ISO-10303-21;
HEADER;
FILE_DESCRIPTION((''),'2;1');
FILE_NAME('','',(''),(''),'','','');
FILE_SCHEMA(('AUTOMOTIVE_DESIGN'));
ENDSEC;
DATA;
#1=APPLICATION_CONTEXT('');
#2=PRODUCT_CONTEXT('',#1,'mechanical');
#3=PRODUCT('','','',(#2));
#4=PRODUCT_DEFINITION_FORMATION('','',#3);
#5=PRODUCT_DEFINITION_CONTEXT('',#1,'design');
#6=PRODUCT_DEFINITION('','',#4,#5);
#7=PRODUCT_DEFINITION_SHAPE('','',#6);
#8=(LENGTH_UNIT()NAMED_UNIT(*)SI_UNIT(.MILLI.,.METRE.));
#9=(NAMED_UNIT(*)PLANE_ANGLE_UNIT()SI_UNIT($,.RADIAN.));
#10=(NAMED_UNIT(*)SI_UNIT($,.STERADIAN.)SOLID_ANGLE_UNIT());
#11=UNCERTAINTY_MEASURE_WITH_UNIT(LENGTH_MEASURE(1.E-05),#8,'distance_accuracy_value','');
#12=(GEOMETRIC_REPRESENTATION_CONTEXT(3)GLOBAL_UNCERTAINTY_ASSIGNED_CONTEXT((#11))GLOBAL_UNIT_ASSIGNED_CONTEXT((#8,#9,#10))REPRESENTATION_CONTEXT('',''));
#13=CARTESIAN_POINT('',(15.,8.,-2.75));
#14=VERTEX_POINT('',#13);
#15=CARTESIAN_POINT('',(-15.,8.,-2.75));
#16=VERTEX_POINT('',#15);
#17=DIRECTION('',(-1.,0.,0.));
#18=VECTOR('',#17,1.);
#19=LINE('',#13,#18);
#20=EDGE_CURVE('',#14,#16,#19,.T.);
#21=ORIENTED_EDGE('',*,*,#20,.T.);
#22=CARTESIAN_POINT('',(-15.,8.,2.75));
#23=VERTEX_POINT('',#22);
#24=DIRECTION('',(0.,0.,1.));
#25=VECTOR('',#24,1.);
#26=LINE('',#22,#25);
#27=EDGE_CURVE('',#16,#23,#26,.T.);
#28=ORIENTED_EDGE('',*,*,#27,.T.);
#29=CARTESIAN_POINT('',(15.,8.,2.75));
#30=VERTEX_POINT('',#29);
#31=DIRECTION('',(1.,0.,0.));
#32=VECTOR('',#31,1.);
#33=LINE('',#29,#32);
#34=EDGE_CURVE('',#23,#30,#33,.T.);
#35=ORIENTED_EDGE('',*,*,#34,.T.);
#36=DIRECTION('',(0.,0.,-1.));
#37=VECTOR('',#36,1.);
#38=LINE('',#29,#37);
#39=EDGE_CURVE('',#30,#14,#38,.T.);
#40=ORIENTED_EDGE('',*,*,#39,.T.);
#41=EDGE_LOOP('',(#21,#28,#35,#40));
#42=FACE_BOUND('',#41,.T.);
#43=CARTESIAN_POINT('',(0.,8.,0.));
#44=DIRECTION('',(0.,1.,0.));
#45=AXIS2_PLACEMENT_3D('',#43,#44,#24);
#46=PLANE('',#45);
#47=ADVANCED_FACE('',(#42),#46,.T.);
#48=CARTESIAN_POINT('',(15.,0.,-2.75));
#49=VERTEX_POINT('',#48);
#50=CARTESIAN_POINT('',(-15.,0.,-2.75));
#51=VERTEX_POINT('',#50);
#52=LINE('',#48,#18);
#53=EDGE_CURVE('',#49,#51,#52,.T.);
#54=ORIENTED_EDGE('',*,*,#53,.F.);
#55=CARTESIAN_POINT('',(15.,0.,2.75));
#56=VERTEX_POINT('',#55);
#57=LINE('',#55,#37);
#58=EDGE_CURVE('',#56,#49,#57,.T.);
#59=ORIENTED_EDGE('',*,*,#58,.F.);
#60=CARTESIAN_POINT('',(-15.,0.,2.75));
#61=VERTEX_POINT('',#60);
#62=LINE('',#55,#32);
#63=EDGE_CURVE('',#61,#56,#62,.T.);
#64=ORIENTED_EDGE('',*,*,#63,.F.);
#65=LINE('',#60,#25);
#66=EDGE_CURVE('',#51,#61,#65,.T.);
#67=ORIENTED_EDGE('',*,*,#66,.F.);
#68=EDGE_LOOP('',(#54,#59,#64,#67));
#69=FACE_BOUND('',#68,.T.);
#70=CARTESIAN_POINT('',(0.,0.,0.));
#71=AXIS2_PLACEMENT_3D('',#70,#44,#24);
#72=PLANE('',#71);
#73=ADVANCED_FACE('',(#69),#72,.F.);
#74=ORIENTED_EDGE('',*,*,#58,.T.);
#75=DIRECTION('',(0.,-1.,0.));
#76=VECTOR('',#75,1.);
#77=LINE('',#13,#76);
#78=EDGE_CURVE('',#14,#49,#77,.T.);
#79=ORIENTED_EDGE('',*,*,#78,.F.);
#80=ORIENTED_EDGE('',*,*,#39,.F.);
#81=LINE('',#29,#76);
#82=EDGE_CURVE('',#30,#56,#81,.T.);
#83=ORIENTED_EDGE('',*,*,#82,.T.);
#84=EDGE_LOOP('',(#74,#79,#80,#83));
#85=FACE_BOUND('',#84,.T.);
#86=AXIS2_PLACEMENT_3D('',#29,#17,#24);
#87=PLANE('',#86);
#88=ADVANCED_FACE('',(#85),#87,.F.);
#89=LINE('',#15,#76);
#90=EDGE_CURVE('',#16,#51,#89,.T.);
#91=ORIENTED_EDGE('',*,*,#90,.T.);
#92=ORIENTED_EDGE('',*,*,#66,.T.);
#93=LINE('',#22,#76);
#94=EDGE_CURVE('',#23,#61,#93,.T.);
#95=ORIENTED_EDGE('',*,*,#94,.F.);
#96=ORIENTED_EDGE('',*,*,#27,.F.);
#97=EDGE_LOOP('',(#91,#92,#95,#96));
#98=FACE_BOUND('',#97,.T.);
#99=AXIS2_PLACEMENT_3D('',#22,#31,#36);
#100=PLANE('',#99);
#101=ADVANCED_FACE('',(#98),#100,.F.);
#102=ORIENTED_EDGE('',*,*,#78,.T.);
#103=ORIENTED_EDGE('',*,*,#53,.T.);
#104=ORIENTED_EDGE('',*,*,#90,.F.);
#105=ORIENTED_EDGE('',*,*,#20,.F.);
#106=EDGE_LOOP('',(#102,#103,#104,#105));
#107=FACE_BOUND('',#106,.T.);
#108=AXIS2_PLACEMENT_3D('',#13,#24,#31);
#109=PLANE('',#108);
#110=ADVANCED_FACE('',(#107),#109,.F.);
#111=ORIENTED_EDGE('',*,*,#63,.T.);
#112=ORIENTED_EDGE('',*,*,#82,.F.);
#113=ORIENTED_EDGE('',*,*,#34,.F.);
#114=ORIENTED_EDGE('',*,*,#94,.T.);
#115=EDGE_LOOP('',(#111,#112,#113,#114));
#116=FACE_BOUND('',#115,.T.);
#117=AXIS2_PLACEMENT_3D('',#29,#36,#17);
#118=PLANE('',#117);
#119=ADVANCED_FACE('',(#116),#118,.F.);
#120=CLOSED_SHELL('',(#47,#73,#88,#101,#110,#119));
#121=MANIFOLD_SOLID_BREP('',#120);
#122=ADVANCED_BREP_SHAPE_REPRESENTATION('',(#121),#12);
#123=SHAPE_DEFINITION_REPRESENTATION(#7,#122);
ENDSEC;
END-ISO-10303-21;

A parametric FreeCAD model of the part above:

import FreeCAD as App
import Part
import Sketcher
from FreeCAD import Vector
Q = App.Units.Quantity


def add_polygon(sketch, points):
    """Adds a closed chain of lines whose ends are joined by coincident constraints."""
    first, n = sketch.GeometryCount, len(points)
    for a, b in zip(points, points[1:] + points[:1]):
        sketch.addGeometry(Part.LineSegment(App.Vector(*a, 0), App.Vector(*b, 0)), False)
    for i in range(n):
        sketch.addConstraint(Sketcher.Constraint("Coincident", first + i, 2, first + (i + 1) % n, 1))

doc = App.newDocument("Part")
body = doc.addObject("PartDesign::Body", "Body")

# Sketch on XZ plane
sketch1 = doc.addObject("Sketcher::SketchObject", "Sketch")
body.addObject(sketch1)
sketch1.AttachmentSupport = (doc.XZ_Plane, [""])
sketch1.MapMode = "FlatFace"
add_polygon(sketch1, [(-15, -3), (-15, 3), (15, 3), (15, -3)])  # lines 0-3
sketch1.addConstraint(Sketcher.Constraint("Vertical", 0))
sketch1.addConstraint(Sketcher.Constraint("Horizontal", 1))
sketch1.addConstraint(Sketcher.Constraint("Vertical", 2))
sketch1.addConstraint(Sketcher.Constraint("Horizontal", 3))
sketch1.addConstraint(Sketcher.Constraint("Symmetric", 0, 2, 2, 2, -1, 1))
sketch1.addConstraint(Sketcher.Constraint("DistanceX", 1, 1, 1, 2, Q("30 mm")))
sketch1.addConstraint(Sketcher.Constraint("DistanceY", 0, 1, 0, 2, Q("5.5 mm")))
pad1 = doc.addObject("PartDesign::Pad", "Pad")
body.addObject(pad1)
pad1.Profile = sketch1
pad1.Length = 8
pad1.Reversed = True

doc.recompute()
